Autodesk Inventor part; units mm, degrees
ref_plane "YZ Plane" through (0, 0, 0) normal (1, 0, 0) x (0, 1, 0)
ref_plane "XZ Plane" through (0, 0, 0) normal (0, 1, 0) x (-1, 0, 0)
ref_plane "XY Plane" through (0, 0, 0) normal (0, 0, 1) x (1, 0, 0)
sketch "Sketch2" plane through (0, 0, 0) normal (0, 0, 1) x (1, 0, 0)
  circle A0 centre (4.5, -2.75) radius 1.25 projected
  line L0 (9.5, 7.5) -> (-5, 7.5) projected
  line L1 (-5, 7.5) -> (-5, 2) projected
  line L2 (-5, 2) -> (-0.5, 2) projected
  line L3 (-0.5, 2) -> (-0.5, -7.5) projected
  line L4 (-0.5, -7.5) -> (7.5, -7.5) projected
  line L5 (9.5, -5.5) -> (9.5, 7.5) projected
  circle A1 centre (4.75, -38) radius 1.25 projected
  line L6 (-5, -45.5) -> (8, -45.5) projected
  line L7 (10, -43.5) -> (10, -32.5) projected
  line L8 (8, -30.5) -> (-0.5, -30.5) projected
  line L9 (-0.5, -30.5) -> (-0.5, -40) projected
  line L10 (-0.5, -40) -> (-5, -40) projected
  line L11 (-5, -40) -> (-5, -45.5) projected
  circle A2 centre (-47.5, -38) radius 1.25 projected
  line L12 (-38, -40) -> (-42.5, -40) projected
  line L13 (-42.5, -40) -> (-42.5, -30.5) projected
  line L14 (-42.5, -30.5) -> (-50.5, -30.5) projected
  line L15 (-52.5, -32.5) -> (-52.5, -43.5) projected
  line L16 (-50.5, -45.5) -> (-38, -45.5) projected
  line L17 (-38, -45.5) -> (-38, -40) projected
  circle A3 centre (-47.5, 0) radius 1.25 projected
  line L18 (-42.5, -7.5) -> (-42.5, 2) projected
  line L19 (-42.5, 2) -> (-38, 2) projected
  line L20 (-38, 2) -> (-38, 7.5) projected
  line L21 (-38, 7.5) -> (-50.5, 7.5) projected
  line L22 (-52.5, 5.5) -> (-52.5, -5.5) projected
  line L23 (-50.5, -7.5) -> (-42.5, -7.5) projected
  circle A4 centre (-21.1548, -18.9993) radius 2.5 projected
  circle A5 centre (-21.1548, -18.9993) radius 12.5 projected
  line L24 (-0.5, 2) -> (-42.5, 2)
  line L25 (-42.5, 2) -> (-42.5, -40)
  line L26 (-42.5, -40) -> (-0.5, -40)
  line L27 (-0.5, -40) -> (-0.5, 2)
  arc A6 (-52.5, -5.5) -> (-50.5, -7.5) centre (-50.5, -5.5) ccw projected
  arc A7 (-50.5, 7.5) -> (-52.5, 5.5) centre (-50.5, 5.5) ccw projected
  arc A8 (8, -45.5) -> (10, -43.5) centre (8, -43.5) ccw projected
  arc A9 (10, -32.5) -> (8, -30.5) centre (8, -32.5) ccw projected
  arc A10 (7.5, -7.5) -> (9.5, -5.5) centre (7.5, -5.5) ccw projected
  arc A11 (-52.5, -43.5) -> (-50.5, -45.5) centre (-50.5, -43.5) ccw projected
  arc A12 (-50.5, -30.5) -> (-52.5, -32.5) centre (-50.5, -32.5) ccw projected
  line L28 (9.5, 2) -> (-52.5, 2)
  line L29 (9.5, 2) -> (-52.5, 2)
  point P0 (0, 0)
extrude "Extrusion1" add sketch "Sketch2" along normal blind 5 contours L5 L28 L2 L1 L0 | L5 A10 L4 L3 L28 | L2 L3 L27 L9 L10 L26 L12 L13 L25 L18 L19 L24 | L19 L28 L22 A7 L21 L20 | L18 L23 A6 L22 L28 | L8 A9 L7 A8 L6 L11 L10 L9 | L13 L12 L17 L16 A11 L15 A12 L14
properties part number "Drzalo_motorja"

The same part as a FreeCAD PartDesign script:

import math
import FreeCAD as App
import Part
import Sketcher

doc = App.newDocument("Part")
body = doc.addObject("PartDesign::Body", "Body")

# Sketch on XY plane
sketch1 = body.newObject("Sketcher::SketchObject", "Sketch")
sketch1.AttachmentSupport = (doc.getObject("XY_Plane"), [""])
sketch1.MapMode = "FlatFace"
sketch1.addGeometry(Part.LineSegment(App.Vector(9.5, 7.5, 0), App.Vector(-5, 7.5, 0)), False)
sketch1.addGeometry(Part.LineSegment(App.Vector(-5, 7.5, 0), App.Vector(-5, 2, 0)), False)
sketch1.addGeometry(Part.LineSegment(App.Vector(-5, 2, 0), App.Vector(-38, 2, 0)), False)
sketch1.addGeometry(Part.LineSegment(App.Vector(-38, 2, 0), App.Vector(-38, 7.5, 0)), False)
sketch1.addGeometry(Part.LineSegment(App.Vector(-38, 7.5, 0), App.Vector(-50.5, 7.5, 0)), False)
sketch1.addGeometry(Part.ArcOfCircle(Part.Circle(App.Vector(-50.5, 5.5, 0), App.Vector(0, 0, 1), 2), math.radians(90), math.radians(180)), False)
sketch1.addGeometry(Part.LineSegment(App.Vector(-52.5, 5.5, 0), App.Vector(-52.5, -5.5, 0)), False)
sketch1.addGeometry(Part.ArcOfCircle(Part.Circle(App.Vector(-50.5, -5.5, 0), App.Vector(0, 0, 1), 2), math.radians(180), math.radians(270)), False)
sketch1.addGeometry(Part.LineSegment(App.Vector(-50.5, -7.5, 0), App.Vector(-42.5, -7.5, 0)), False)
sketch1.addGeometry(Part.LineSegment(App.Vector(-42.5, -7.5, 0), App.Vector(-42.5, -30.5, 0)), False)
sketch1.addGeometry(Part.LineSegment(App.Vector(-42.5, -30.5, 0), App.Vector(-50.5, -30.5, 0)), False)
sketch1.addGeometry(Part.ArcOfCircle(Part.Circle(App.Vector(-50.5, -32.5, 0), App.Vector(0, 0, 1), 2), math.radians(90), math.radians(180)), False)
sketch1.addGeometry(Part.LineSegment(App.Vector(-52.5, -32.5, 0), App.Vector(-52.5, -43.5, 0)), False)
sketch1.addGeometry(Part.ArcOfCircle(Part.Circle(App.Vector(-50.5, -43.5, 0), App.Vector(0, 0, 1), 2), math.radians(180), math.radians(270)), False)
sketch1.addGeometry(Part.LineSegment(App.Vector(-50.5, -45.5, 0), App.Vector(-38, -45.5, 0)), False)
sketch1.addGeometry(Part.LineSegment(App.Vector(-38, -45.5, 0), App.Vector(-38, -40, 0)), False)
sketch1.addGeometry(Part.LineSegment(App.Vector(-38, -40, 0), App.Vector(-5, -40, 0)), False)
sketch1.addGeometry(Part.LineSegment(App.Vector(-5, -40, 0), App.Vector(-5, -45.5, 0)), False)
sketch1.addGeometry(Part.LineSegment(App.Vector(-5, -45.5, 0), App.Vector(8, -45.5, 0)), False)
sketch1.addGeometry(Part.ArcOfCircle(Part.Circle(App.Vector(8, -43.5, 0), App.Vector(0, 0, 1), 2), math.radians(-90), math.radians(0)), False)
sketch1.addGeometry(Part.LineSegment(App.Vector(10, -43.5, 0), App.Vector(10, -32.5, 0)), False)
sketch1.addGeometry(Part.ArcOfCircle(Part.Circle(App.Vector(8, -32.5, 0), App.Vector(0, 0, 1), 2), math.radians(0), math.radians(90)), False)
sketch1.addGeometry(Part.LineSegment(App.Vector(8, -30.5, 0), App.Vector(-0.5, -30.5, 0)), False)
sketch1.addGeometry(Part.LineSegment(App.Vector(-0.5, -30.5, 0), App.Vector(-0.5, -7.5, 0)), False)
sketch1.addGeometry(Part.LineSegment(App.Vector(-0.5, -7.5, 0), App.Vector(7.5, -7.5, 0)), False)
sketch1.addGeometry(Part.ArcOfCircle(Part.Circle(App.Vector(7.5, -5.5, 0), App.Vector(0, 0, 1), 2), math.radians(-90), math.radians(0)), False)
sketch1.addGeometry(Part.LineSegment(App.Vector(9.5, -5.5, 0), App.Vector(9.5, 7.5, 0)), False)
sketch1.addGeometry(Part.Circle(App.Vector(4.5, -2.75, 0), App.Vector(0, 0, 1), 1.25), False)
sketch1.addGeometry(Part.Circle(App.Vector(-21.1548, -18.9993, 0), App.Vector(0, 0, 1), 12.5), False)
sketch1.addGeometry(Part.Circle(App.Vector(4.75, -38, 0), App.Vector(0, 0, 1), 1.25), False)
sketch1.addGeometry(Part.Circle(App.Vector(-47.5, -38, 0), App.Vector(0, 0, 1), 1.25), False)
sketch1.addGeometry(Part.Circle(App.Vector(-47.5, 0, 0), App.Vector(0, 0, 1), 1.25), False)
sketch1.addConstraint(Sketcher.Constraint("Coincident", 0, 2, 1, 1))
sketch1.addConstraint(Sketcher.Constraint("Coincident", 1, 2, 2, 1))
sketch1.addConstraint(Sketcher.Constraint("Coincident", 2, 2, 3, 1))
sketch1.addConstraint(Sketcher.Constraint("Coincident", 3, 2, 4, 1))
sketch1.addConstraint(Sketcher.Constraint("Tangent", 4, 2, 5, 1))
sketch1.addConstraint(Sketcher.Constraint("Tangent", 5, 2, 6, 1))
sketch1.addConstraint(Sketcher.Constraint("Tangent", 6, 2, 7, 1))
sketch1.addConstraint(Sketcher.Constraint("Tangent", 7, 2, 8, 1))
sketch1.addConstraint(Sketcher.Constraint("Coincident", 8, 2, 9, 1))
sketch1.addConstraint(Sketcher.Constraint("Coincident", 9, 2, 10, 1))
sketch1.addConstraint(Sketcher.Constraint("Tangent", 10, 2, 11, 1))
sketch1.addConstraint(Sketcher.Constraint("Tangent", 11, 2, 12, 1))
sketch1.addConstraint(Sketcher.Constraint("Tangent", 12, 2, 13, 1))
sketch1.addConstraint(Sketcher.Constraint("Tangent", 13, 2, 14, 1))
sketch1.addConstraint(Sketcher.Constraint("Coincident", 14, 2, 15, 1))
sketch1.addConstraint(Sketcher.Constraint("Coincident", 15, 2, 16, 1))
sketch1.addConstraint(Sketcher.Constraint("Coincident", 16, 2, 17, 1))
sketch1.addConstraint(Sketcher.Constraint("Coincident", 17, 2, 18, 1))
sketch1.addConstraint(Sketcher.Constraint("Tangent", 18, 2, 19, 1))
sketch1.addConstraint(Sketcher.Constraint("Tangent", 19, 2, 20, 1))
sketch1.addConstraint(Sketcher.Constraint("Tangent", 20, 2, 21, 1))
sketch1.addConstraint(Sketcher.Constraint("Tangent", 21, 2, 22, 1))
sketch1.addConstraint(Sketcher.Constraint("Coincident", 22, 2, 23, 1))
sketch1.addConstraint(Sketcher.Constraint("Coincident", 23, 2, 24, 1))
sketch1.addConstraint(Sketcher.Constraint("Tangent", 24, 2, 25, 1))
sketch1.addConstraint(Sketcher.Constraint("Tangent", 25, 2, 26, 1))
sketch1.addConstraint(Sketcher.Constraint("Coincident", 26, 2, 0, 1))
sketch1.addConstraint(Sketcher.Constraint("Horizontal", 0))
sketch1.addConstraint(Sketcher.Constraint("Vertical", 1))
sketch1.addConstraint(Sketcher.Constraint("Horizontal", 2))
sketch1.addConstraint(Sketcher.Constraint("Vertical", 3))
sketch1.addConstraint(Sketcher.Constraint("Horizontal", 4))
sketch1.addConstraint(Sketcher.Constraint("Vertical", 6))
sketch1.addConstraint(Sketcher.Constraint("Horizontal", 8))
sketch1.addConstraint(Sketcher.Constraint("Vertical", 9))
sketch1.addConstraint(Sketcher.Constraint("Horizontal", 10))
sketch1.addConstraint(Sketcher.Constraint("Vertical", 12))
sketch1.addConstraint(Sketcher.Constraint("Horizontal", 14))
sketch1.addConstraint(Sketcher.Constraint("Vertical", 15))
sketch1.addConstraint(Sketcher.Constraint("Horizontal", 16))
sketch1.addConstraint(Sketcher.Constraint("Vertical", 17))
sketch1.addConstraint(Sketcher.Constraint("Horizontal", 18))
sketch1.addConstraint(Sketcher.Constraint("Vertical", 20))
sketch1.addConstraint(Sketcher.Constraint("Horizontal", 22))
sketch1.addConstraint(Sketcher.Constraint("Vertical", 23))
sketch1.addConstraint(Sketcher.Constraint("Horizontal", 24))
sketch1.addConstraint(Sketcher.Constraint("Vertical", 26))
sketch1.addConstraint(Sketcher.Constraint("Equal", 5, 7))
sketch1.addConstraint(Sketcher.Constraint("Equal", 7, 11))
sketch1.addConstraint(Sketcher.Constraint("Equal", 11, 13))
sketch1.addConstraint(Sketcher.Constraint("Equal", 13, 19))
sketch1.addConstraint(Sketcher.Constraint("Equal", 19, 21))
sketch1.addConstraint(Sketcher.Constraint("Equal", 21, 25))
sketch1.addConstraint(Sketcher.Constraint("Equal", 27, 29))
sketch1.addConstraint(Sketcher.Constraint("Equal", 29, 30))
sketch1.addConstraint(Sketcher.Constraint("Equal", 30, 31))
sketch1.addConstraint(Sketcher.Constraint("PointOnObject", 31, 3, -1))
sketch1.addConstraint(Sketcher.Constraint("Horizontal", 13, 3, 19, 3))
sketch1.addConstraint(Sketcher.Constraint("Horizontal", 11, 3, 21, 3))
sketch1.addConstraint(Sketcher.Constraint("Horizontal", 7, 3, 25, 3))
sketch1.addConstraint(Sketcher.Constraint("Horizontal", 29, 3, 30, 3))
sketch1.addConstraint(Sketcher.Constraint("Horizontal", 0, 2, 3, 2))
sketch1.addConstraint(Sketcher.Constraint("Vertical", 7, 3, 11, 3))
sketch1.addConstraint(Sketcher.Constraint("Vertical", 30, 3, 31, 3))
sketch1.addConstraint(Sketcher.Constraint("Vertical", 3, 2, 14, 2))
sketch1.addConstraint(Sketcher.Constraint("Vertical", 1, 2, 16, 2))
sketch1.addConstraint(Sketcher.Constraint("Equal", 10, 24))
sketch1.addConstraint(Sketcher.Constraint("Equal", 6, 12))
sketch1.addConstraint(Sketcher.Constraint("Equal", 3, 15))
sketch1.addConstraint(Sketcher.Constraint("Equal", 18, 26))
sketch1.addConstraint(Sketcher.Constraint("Diameter", 28, 25.0))
sketch1.addConstraint(Sketcher.Constraint("Radius", 5, 2.0))
sketch1.addConstraint(Sketcher.Constraint("Diameter", 27, 2.5))
sketch1.addConstraint(Sketcher.Constraint("DistanceX", 2, 2, 2, 1, 33.0))
sketch1.addConstraint(Sketcher.Constraint("DistanceX", 8, 1, 8, 2, 8.0))
sketch1.addConstraint(Sketcher.Constraint("DistanceX", 18, 1, 18, 2, 13.0))
sketch1.addConstraint(Sketcher.Constraint("DistanceY", 9, 2, 9, 1, 23.0))
sketch1.addConstraint(Sketcher.Constraint("DistanceX", 0, 2, 0, 1, 14.5))
sketch1.addConstraint(Sketcher.Constraint("DistanceX", 4, 2, 4, 1, 12.5))
sketch1.addConstraint(Sketcher.Constraint("DistanceY", 1, 2, 1, 1, 5.5))
sketch1.addConstraint(Sketcher.Constraint("DistanceX", -1, 1, 19, 3, 8.0))
sketch1.addConstraint(Sketcher.Constraint("DistanceY", 29, 3, -1, 1, 38.0))
sketch1.addConstraint(Sketcher.Constraint("DistanceY", -1, 1, 1, 2, 2.0))
sketch1.addConstraint(Sketcher.Constraint("DistanceX", 27, 3, 25, 3, 3.0))
sketch1.addConstraint(Sketcher.Constraint("DistanceX", 11, 3, 30, 3, 3.0))
sketch1.addConstraint(Sketcher.Constraint("DistanceY", 27, 3, -1, 1, 2.75))
sketch1.addConstraint(Sketcher.Constraint("DistanceX", -1, 1, 29, 3, 4.75))
sketch1.addConstraint(Sketcher.Constraint("DistanceX", 28, 3, -1, 1, 21.1548))
sketch1.addConstraint(Sketcher.Constraint("DistanceY", 28, 3, -1, 1, 18.9993))
pad1 = body.newObject("PartDesign::Pad", "Pad")
pad1.Profile = sketch1
pad1.Length = 5

doc.recompute()
